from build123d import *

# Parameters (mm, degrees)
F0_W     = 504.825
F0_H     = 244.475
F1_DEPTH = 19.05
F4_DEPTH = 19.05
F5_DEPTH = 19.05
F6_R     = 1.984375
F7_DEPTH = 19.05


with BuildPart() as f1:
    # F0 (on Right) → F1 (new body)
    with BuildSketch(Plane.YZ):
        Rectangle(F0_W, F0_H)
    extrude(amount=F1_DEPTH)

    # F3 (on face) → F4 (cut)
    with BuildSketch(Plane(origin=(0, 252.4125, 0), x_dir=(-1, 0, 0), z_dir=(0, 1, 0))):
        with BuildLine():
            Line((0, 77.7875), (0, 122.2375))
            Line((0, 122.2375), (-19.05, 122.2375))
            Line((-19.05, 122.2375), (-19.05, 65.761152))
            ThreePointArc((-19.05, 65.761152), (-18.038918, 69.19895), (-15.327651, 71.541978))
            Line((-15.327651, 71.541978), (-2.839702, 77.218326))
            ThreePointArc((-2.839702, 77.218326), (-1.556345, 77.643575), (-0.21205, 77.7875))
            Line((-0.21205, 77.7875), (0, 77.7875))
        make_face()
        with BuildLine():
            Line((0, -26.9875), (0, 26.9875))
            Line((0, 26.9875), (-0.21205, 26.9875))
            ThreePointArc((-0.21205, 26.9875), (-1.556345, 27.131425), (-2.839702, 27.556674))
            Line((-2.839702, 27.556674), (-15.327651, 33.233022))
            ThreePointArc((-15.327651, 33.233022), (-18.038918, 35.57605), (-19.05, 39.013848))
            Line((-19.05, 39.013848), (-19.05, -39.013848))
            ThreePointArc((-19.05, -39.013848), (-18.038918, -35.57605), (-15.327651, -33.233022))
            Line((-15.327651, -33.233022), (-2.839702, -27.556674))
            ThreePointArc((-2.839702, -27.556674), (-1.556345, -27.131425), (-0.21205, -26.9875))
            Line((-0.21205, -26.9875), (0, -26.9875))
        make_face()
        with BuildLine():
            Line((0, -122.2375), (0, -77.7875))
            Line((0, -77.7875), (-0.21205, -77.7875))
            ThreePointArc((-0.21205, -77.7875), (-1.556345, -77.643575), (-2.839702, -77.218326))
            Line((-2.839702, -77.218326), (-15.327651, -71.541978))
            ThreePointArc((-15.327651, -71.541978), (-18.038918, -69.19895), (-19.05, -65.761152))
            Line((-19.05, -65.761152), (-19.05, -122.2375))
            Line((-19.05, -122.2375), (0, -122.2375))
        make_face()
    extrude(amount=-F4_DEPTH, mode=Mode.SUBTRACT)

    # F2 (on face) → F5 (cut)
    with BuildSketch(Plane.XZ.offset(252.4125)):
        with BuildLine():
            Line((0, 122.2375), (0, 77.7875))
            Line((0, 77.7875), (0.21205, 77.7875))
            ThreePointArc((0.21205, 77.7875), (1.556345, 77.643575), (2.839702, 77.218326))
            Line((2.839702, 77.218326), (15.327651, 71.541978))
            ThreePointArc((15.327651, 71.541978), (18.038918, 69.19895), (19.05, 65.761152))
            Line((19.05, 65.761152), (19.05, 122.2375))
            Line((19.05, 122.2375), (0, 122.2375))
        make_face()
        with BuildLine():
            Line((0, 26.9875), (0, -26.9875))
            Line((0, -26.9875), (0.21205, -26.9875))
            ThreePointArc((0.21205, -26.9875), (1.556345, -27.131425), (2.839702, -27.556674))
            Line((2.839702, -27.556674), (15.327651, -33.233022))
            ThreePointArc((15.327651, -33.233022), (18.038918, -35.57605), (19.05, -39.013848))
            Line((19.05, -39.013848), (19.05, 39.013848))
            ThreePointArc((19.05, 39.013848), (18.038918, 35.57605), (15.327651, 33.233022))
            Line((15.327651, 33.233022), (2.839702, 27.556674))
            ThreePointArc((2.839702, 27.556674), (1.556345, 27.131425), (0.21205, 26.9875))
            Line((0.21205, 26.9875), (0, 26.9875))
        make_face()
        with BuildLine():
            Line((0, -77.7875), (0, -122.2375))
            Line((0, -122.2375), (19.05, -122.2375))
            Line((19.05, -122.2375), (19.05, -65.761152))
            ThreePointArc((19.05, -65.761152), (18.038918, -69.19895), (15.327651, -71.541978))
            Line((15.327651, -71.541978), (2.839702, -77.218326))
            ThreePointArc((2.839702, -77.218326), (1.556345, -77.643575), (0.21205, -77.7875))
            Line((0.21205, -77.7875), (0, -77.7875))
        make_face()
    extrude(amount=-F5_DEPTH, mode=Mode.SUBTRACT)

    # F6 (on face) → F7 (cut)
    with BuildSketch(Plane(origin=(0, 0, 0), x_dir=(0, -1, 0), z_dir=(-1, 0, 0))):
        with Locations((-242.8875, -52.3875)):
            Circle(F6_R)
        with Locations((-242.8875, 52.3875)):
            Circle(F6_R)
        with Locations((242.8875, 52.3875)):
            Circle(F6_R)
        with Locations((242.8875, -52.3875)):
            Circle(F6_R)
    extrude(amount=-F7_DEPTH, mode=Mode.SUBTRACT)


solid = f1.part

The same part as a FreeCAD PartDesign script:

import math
import FreeCAD as App
import Part
import Sketcher
from FreeCAD import Vector
Q = App.Units.Quantity

doc = App.newDocument("Part")
body = doc.addObject("PartDesign::Body", "Body")

# Sketch on YZ plane
sketch1 = doc.addObject("Sketcher::SketchObject", "Sketch")
body.addObject(sketch1)
sketch1.AttachmentSupport = (doc.YZ_Plane, [""])
sketch1.MapMode = "FlatFace"
sketch1.addGeometry(Part.LineSegment(Vector(-252, 122, 0), Vector(-252, -122, 0)), False)
sketch1.addGeometry(Part.LineSegment(Vector(-252, -122, 0), Vector(252, -122, 0)), False)
sketch1.addGeometry(Part.LineSegment(Vector(252, -122, 0), Vector(252, 122, 0)), False)
sketch1.addGeometry(Part.LineSegment(Vector(252, 122, 0), Vector(-252, 122, 0)), False)
sketch1.addConstraint(Sketcher.Constraint("Coincident", 0, 2, 1, 1))
sketch1.addConstraint(Sketcher.Constraint("Coincident", 1, 2, 2, 1))
sketch1.addConstraint(Sketcher.Constraint("Coincident", 2, 2, 3, 1))
sketch1.addConstraint(Sketcher.Constraint("Coincident", 3, 2, 0, 1))
sketch1.addConstraint(Sketcher.Constraint("Vertical", 0))
sketch1.addConstraint(Sketcher.Constraint("Horizontal", 1))
sketch1.addConstraint(Sketcher.Constraint("Vertical", 2))
sketch1.addConstraint(Sketcher.Constraint("Horizontal", 3))
sketch1.addConstraint(Sketcher.Constraint("Symmetric", 0, 2, 2, 2, -1, 1))
sketch1.addConstraint(Sketcher.Constraint("DistanceX", 1, 1, 1, 2, Q("19.875 in")))
sketch1.addConstraint(Sketcher.Constraint("DistanceY", 0, 2, 0, 1, Q("9.625 in")))
pad1 = doc.addObject("PartDesign::Pad", "Pad")
body.addObject(pad1)
pad1.Profile = sketch1
pad1.Length = Q("0.75 in")

# Sketch on XZ plane
sketch2 = doc.addObject("Sketcher::SketchObject", "Sketch001")
body.addObject(sketch2)
sketch2.AttachmentSupport = (doc.XZ_Plane, [""])
sketch2.MapMode = "FlatFace"
sketch2.AttachmentOffset = App.Placement(Vector(0, 0, -9.9375 * 25.4), App.Rotation())
sketch2.addGeometry(Part.LineSegment(Vector(0, 77.7875, 0), Vector(0, 122.2375, 0)), False)
sketch2.addGeometry(Part.LineSegment(Vector(0, 122.2375, 0), Vector(19.05, 122.2375, 0)), False)
sketch2.addGeometry(Part.LineSegment(Vector(19.05, 122.2375, 0), Vector(19.05, 65.761152, 0)), False)
sketch2.addGeometry(Part.ArcOfCircle(Part.Circle(Vector(12.7, 65.761152, 0), Vector(0, 0, 1), 6.35), math.radians(-0.000002), math.radians(65.556025)), False)
sketch2.addGeometry(Part.LineSegment(Vector(15.327651, 71.541978, 0), Vector(2.839702, 77.218326, 0)), False)
sketch2.addGeometry(Part.ArcOfCircle(Part.Circle(Vector(0.212046, 71.437479, 0), Vector(0, 0, 1), 6.350021), math.radians(65.556062), math.radians(89.999966)), False)
sketch2.addGeometry(Part.LineSegment(Vector(0.21205, 77.7875, 0), Vector(0, 77.7875, 0)), False)
sketch2.addGeometry(Part.LineSegment(Vector(0, -26.9875, 0), Vector(0, 26.9875, 0)), False)
sketch2.addGeometry(Part.LineSegment(Vector(0, 26.9875, 0), Vector(0.21205, 26.9875, 0)), False)
sketch2.addGeometry(Part.ArcOfCircle(Part.Circle(Vector(0.212046, 33.337521, 0), Vector(0, 0, 1), 6.350021), math.radians(-89.999966), math.radians(-65.556062)), False)
sketch2.addGeometry(Part.LineSegment(Vector(2.839702, 27.556674, 0), Vector(15.327651, 33.233022, 0)), False)
sketch2.addGeometry(Part.ArcOfCircle(Part.Circle(Vector(12.7, 39.013848, 0), Vector(0, 0, 1), 6.35), math.radians(-65.556025), math.radians(0.000002)), False)
sketch2.addGeometry(Part.LineSegment(Vector(19.05, 39.013848, 0), Vector(19.05, -39.013848, 0)), False)
sketch2.addGeometry(Part.ArcOfCircle(Part.Circle(Vector(12.7, -39.013848, 0), Vector(0, 0, 1), 6.35), math.radians(-0.000002), math.radians(65.556025)), False)
sketch2.addGeometry(Part.LineSegment(Vector(15.327651, -33.233022, 0), Vector(2.839702, -27.556674, 0)), False)
sketch2.addGeometry(Part.ArcOfCircle(Part.Circle(Vector(0.212046, -33.337521, 0), Vector(0, 0, 1), 6.350021), math.radians(65.556062), math.radians(89.999966)), False)
sketch2.addGeometry(Part.LineSegment(Vector(0.21205, -26.9875, 0), Vector(0, -26.9875, 0)), False)
sketch2.addGeometry(Part.LineSegment(Vector(0, -122.2375, 0), Vector(0, -77.7875, 0)), False)
sketch2.addGeometry(Part.LineSegment(Vector(0, -77.7875, 0), Vector(0.21205, -77.7875, 0)), False)
sketch2.addGeometry(Part.ArcOfCircle(Part.Circle(Vector(0.212046, -71.437479, 0), Vector(0, 0, 1), 6.350021), math.radians(-89.999966), math.radians(-65.556062)), False)
sketch2.addGeometry(Part.LineSegment(Vector(2.839702, -77.218326, 0), Vector(15.327651, -71.541978, 0)), False)
sketch2.addGeometry(Part.ArcOfCircle(Part.Circle(Vector(12.7, -65.761152, 0), Vector(0, 0, 1), 6.35), math.radians(-65.556025), math.radians(0.000002)), False)
sketch2.addGeometry(Part.LineSegment(Vector(19.05, -65.761152, 0), Vector(19.05, -122.2375, 0)), False)
sketch2.addGeometry(Part.LineSegment(Vector(19.05, -122.2375, 0), Vector(0, -122.2375, 0)), False)
sketch2.addConstraint(Sketcher.Constraint("Coincident", 0, 2, 1, 1))
sketch2.addConstraint(Sketcher.Constraint("Coincident", 1, 2, 2, 1))
sketch2.addConstraint(Sketcher.Constraint("Coincident", 2, 2, 3, 1))
sketch2.addConstraint(Sketcher.Constraint("Coincident", 3, 2, 4, 1))
sketch2.addConstraint(Sketcher.Constraint("Coincident", 4, 2, 5, 1))
sketch2.addConstraint(Sketcher.Constraint("Coincident", 5, 2, 6, 1))
sketch2.addConstraint(Sketcher.Constraint("Coincident", 6, 2, 0, 1))
sketch2.addConstraint(Sketcher.Constraint("Coincident", 7, 2, 8, 1))
sketch2.addConstraint(Sketcher.Constraint("Coincident", 8, 2, 9, 1))
sketch2.addConstraint(Sketcher.Constraint("Coincident", 9, 2, 10, 1))
sketch2.addConstraint(Sketcher.Constraint("Coincident", 10, 2, 11, 1))
sketch2.addConstraint(Sketcher.Constraint("Coincident", 11, 2, 12, 1))
sketch2.addConstraint(Sketcher.Constraint("Coincident", 12, 2, 13, 1))
sketch2.addConstraint(Sketcher.Constraint("Coincident", 13, 2, 14, 1))
sketch2.addConstraint(Sketcher.Constraint("Coincident", 14, 2, 15, 1))
sketch2.addConstraint(Sketcher.Constraint("Coincident", 15, 2, 16, 1))
sketch2.addConstraint(Sketcher.Constraint("Coincident", 16, 2, 7, 1))
sketch2.addConstraint(Sketcher.Constraint("Coincident", 17, 2, 18, 1))
sketch2.addConstraint(Sketcher.Constraint("Coincident", 18, 2, 19, 1))
sketch2.addConstraint(Sketcher.Constraint("Coincident", 19, 2, 20, 1))
sketch2.addConstraint(Sketcher.Constraint("Coincident", 20, 2, 21, 1))
sketch2.addConstraint(Sketcher.Constraint("Coincident", 21, 2, 22, 1))
sketch2.addConstraint(Sketcher.Constraint("Coincident", 22, 2, 23, 1))
sketch2.addConstraint(Sketcher.Constraint("Coincident", 23, 2, 17, 1))
sketch2.addConstraint(Sketcher.Constraint("Vertical", 0))
sketch2.addConstraint(Sketcher.Constraint("Horizontal", 1))
sketch2.addConstraint(Sketcher.Constraint("Vertical", 2))
sketch2.addConstraint(Sketcher.Constraint("Horizontal", 6))
sketch2.addConstraint(Sketcher.Constraint("Vertical", 7))
sketch2.addConstraint(Sketcher.Constraint("Horizontal", 8))
sketch2.addConstraint(Sketcher.Constraint("Vertical", 12))
sketch2.addConstraint(Sketcher.Constraint("Horizontal", 16))
sketch2.addConstraint(Sketcher.Constraint("Vertical", 17))
sketch2.addConstraint(Sketcher.Constraint("Horizontal", 18))
sketch2.addConstraint(Sketcher.Constraint("Vertical", 22))
sketch2.addConstraint(Sketcher.Constraint("Horizontal", 23))
sketch2.addConstraint(Sketcher.Constraint("PointOnObject", 0, 2, -2))
sketch2.addConstraint(Sketcher.Constraint("PointOnObject", 7, 2, -2))
sketch2.addConstraint(Sketcher.Constraint("PointOnObject", 17, 2, -2))
sketch2.addConstraint(Sketcher.Constraint("Radius", 3, Q("0.25 in")))
sketch2.addConstraint(Sketcher.Constraint("Radius", 11, Q("0.25 in")))
sketch2.addConstraint(Sketcher.Constraint("Radius", 13, Q("0.25 in")))
sketch2.addConstraint(Sketcher.Constraint("Radius", 21, Q("0.25 in")))
sketch2.addConstraint(Sketcher.Constraint("DistanceX", 1, 1, 1, 2, Q("0.75 in")))
sketch2.addConstraint(Sketcher.Constraint("DistanceX", 23, 2, 23, 1, Q("0.75 in")))
sketch2.addConstraint(Sketcher.Constraint("DistanceY", 0, 1, 0, 2, Q("1.75 in")))
sketch2.addConstraint(Sketcher.Constraint("DistanceY", 17, 1, 17, 2, Q("1.75 in")))
sketch2.addConstraint(Sketcher.Constraint("DistanceX", -1, 1, 11, 3, Q("0.5 in")))
sketch2.addConstraint(Sketcher.Constraint("DistanceY", 7, 1, 7, 2, Q("2.125 in")))
sketch2.addConstraint(Sketcher.Constraint("DistanceY", -1, 1, 0, 2, Q("4.8125 in")))
sketch2.addConstraint(Sketcher.Constraint("DistanceY", -1, 1, 7, 2, Q("1.0625 in")))
sketch2.addConstraint(Sketcher.Constraint("DistanceY", 17, 2, -1, 1, Q("3.0625 in")))
sketch2.addConstraint(Sketcher.Constraint("Radius", 5, Q("6.350021 mm")))
sketch2.addConstraint(Sketcher.Constraint("Radius", 9, Q("6.350021 mm")))
sketch2.addConstraint(Sketcher.Constraint("Radius", 15, Q("6.350021 mm")))
sketch2.addConstraint(Sketcher.Constraint("Radius", 19, Q("6.350021 mm")))
sketch2.addConstraint(Sketcher.Constraint("DistanceY", 13, 3, 3, 3, Q("4.125 in")))
sketch2.addConstraint(Sketcher.Constraint("DistanceY", 21, 3, 11, 3, Q("4.125 in")))
sketch2.addConstraint(Sketcher.Constraint("Distance", 4, Q("13.7175 mm")))
sketch2.addConstraint(Sketcher.Constraint("Distance", 10, Q("13.7175 mm")))
sketch2.addConstraint(Sketcher.Constraint("Distance", 14, Q("13.7175 mm")))
sketch2.addConstraint(Sketcher.Constraint("Distance", 20, Q("13.7175 mm")))
sketch2.addConstraint(Sketcher.Constraint("DistanceX", 6, 2, 6, 1, Q("0.21205 mm")))
sketch2.addConstraint(Sketcher.Constraint("DistanceX", 8, 1, 8, 2, Q("0.21205 mm")))
sketch2.addConstraint(Sketcher.Constraint("DistanceX", 16, 2, 16, 1, Q("0.21205 mm")))
sketch2.addConstraint(Sketcher.Constraint("DistanceX", 18, 1, 18, 2, Q("0.21205 mm")))
sketch2.addConstraint(Sketcher.Constraint("DistanceY", 2, 2, 2, 1, Q("56.476348 mm")))
sketch2.addConstraint(Sketcher.Constraint("DistanceY", 22, 2, 22, 1, Q("56.476348 mm")))
sketch2.addConstraint(Sketcher.Constraint("DistanceX", -1, 1, 4, 2, Q("2.839702 mm")))
sketch2.addConstraint(Sketcher.Constraint("DistanceX", -1, 1, 9, 2, Q("2.839702 mm")))
sketch2.addConstraint(Sketcher.Constraint("DistanceX", -1, 1, 14, 2, Q("2.839702 mm")))
sketch2.addConstraint(Sketcher.Constraint("DistanceX", -1, 1, 19, 2, Q("2.839702 mm")))
sketch2.addConstraint(Sketcher.Constraint("DistanceY", 5, 3, 3, 2, Q("0.104499 mm")))
sketch2.addConstraint(Sketcher.Constraint("DistanceX", 5, 2, 3, 2, Q("15.115601 mm")))
sketch2.addConstraint(Sketcher.Constraint("DistanceY", 10, 2, 9, 3, Q("0.104499 mm")))
sketch2.addConstraint(Sketcher.Constraint("DistanceX", 8, 2, 10, 2, Q("15.115601 mm")))
sketch2.addConstraint(Sketcher.Constraint("DistanceY", 15, 3, 13, 2, Q("0.104499 mm")))
sketch2.addConstraint(Sketcher.Constraint("DistanceY", 20, 2, 19, 3, Q("0.104499 mm")))
sketch2.addConstraint(Sketcher.Constraint("DistanceY", 12, 2, 12, 1, Q("78.027696 mm")))
sketch2.addConstraint(Sketcher.Constraint("DistanceY", -1, 1, 11, 2, Q("39.013848 mm")))
pocket1 = doc.addObject("PartDesign::Pocket", "Pocket")
body.addObject(pocket1)
pocket1.Profile = sketch2
pocket1.Length = Q("0.75 in")
pocket1.Reversed = True

# Sketch on XZ plane
sketch3 = doc.addObject("Sketcher::SketchObject", "Sketch002")
body.addObject(sketch3)
sketch3.AttachmentSupport = (doc.XZ_Plane, [""])
sketch3.MapMode = "FlatFace"
sketch3.AttachmentOffset = App.Placement(Vector(0, 0, 9.9375 * 25.4), App.Rotation())
sketch3.addGeometry(Part.LineSegment(Vector(0, 122.2375, 0), Vector(0, 77.7875, 0)), False)
sketch3.addGeometry(Part.LineSegment(Vector(0, 77.7875, 0), Vector(0.21205, 77.7875, 0)), False)
sketch3.addGeometry(Part.ArcOfCircle(Part.Circle(Vector(0.212046, 71.437479, 0), Vector(0, 0, 1), 6.350021), math.radians(65.556062), math.radians(89.999966)), False)
sketch3.addGeometry(Part.LineSegment(Vector(2.839702, 77.218326, 0), Vector(15.327651, 71.541978, 0)), False)
sketch3.addGeometry(Part.ArcOfCircle(Part.Circle(Vector(12.7, 65.761152, 0), Vector(0, 0, 1), 6.35), math.radians(-0.000002), math.radians(65.556025)), False)
sketch3.addGeometry(Part.LineSegment(Vector(19.05, 65.761152, 0), Vector(19.05, 122.2375, 0)), False)
sketch3.addGeometry(Part.LineSegment(Vector(19.05, 122.2375, 0), Vector(0, 122.2375, 0)), False)
sketch3.addGeometry(Part.LineSegment(Vector(0, 26.9875, 0), Vector(0, -26.9875, 0)), False)
sketch3.addGeometry(Part.LineSegment(Vector(0, -26.9875, 0), Vector(0.21205, -26.9875, 0)), False)
sketch3.addGeometry(Part.ArcOfCircle(Part.Circle(Vector(0.212046, -33.337521, 0), Vector(0, 0, 1), 6.350021), math.radians(65.556062), math.radians(89.999966)), False)
sketch3.addGeometry(Part.LineSegment(Vector(2.839702, -27.556674, 0), Vector(15.327651, -33.233022, 0)), False)
sketch3.addGeometry(Part.ArcOfCircle(Part.Circle(Vector(12.7, -39.013848, 0), Vector(0, 0, 1), 6.35), math.radians(-0.000002), math.radians(65.556025)), False)
sketch3.addGeometry(Part.LineSegment(Vector(19.05, -39.013848, 0), Vector(19.05, 39.013848, 0)), False)
sketch3.addGeometry(Part.ArcOfCircle(Part.Circle(Vector(12.7, 39.013848, 0), Vector(0, 0, 1), 6.35), math.radians(-65.556025), math.radians(0.000002)), False)
sketch3.addGeometry(Part.LineSegment(Vector(15.327651, 33.233022, 0), Vector(2.839702, 27.556674, 0)), False)
sketch3.addGeometry(Part.ArcOfCircle(Part.Circle(Vector(0.212046, 33.337521, 0), Vector(0, 0, 1), 6.350021), math.radians(-89.999966), math.radians(-65.556062)), False)
sketch3.addGeometry(Part.LineSegment(Vector(0.21205, 26.9875, 0), Vector(0, 26.9875, 0)), False)
sketch3.addGeometry(Part.LineSegment(Vector(0, -77.7875, 0), Vector(0, -122.2375, 0)), False)
sketch3.addGeometry(Part.LineSegment(Vector(0, -122.2375, 0), Vector(19.05, -122.2375, 0)), False)
sketch3.addGeometry(Part.LineSegment(Vector(19.05, -122.2375, 0), Vector(19.05, -65.761152, 0)), False)
sketch3.addGeometry(Part.ArcOfCircle(Part.Circle(Vector(12.7, -65.761152, 0), Vector(0, 0, 1), 6.35), math.radians(-65.556025), math.radians(0.000002)), False)
sketch3.addGeometry(Part.LineSegment(Vector(15.327651, -71.541978, 0), Vector(2.839702, -77.218326, 0)), False)
sketch3.addGeometry(Part.ArcOfCircle(Part.Circle(Vector(0.212046, -71.437479, 0), Vector(0, 0, 1), 6.350021), math.radians(-89.999966), math.radians(-65.556062)), False)
sketch3.addGeometry(Part.LineSegment(Vector(0.21205, -77.7875, 0), Vector(0, -77.7875, 0)), False)
sketch3.addConstraint(Sketcher.Constraint("Coincident", 0, 2, 1, 1))
sketch3.addConstraint(Sketcher.Constraint("Coincident", 1, 2, 2, 2))
sketch3.addConstraint(Sketcher.Constraint("Coincident", 2, 1, 3, 1))
sketch3.addConstraint(Sketcher.Constraint("Coincident", 3, 2, 4, 2))
sketch3.addConstraint(Sketcher.Constraint("Coincident", 4, 1, 5, 1))
sketch3.addConstraint(Sketcher.Constraint("Coincident", 5, 2, 6, 1))
sketch3.addConstraint(Sketcher.Constraint("Coincident", 6, 2, 0, 1))
sketch3.addConstraint(Sketcher.Constraint("Coincident", 7, 2, 8, 1))
sketch3.addConstraint(Sketcher.Constraint("Coincident", 8, 2, 9, 2))
sketch3.addConstraint(Sketcher.Constraint("Coincident", 9, 1, 10, 1))
sketch3.addConstraint(Sketcher.Constraint("Coincident", 10, 2, 11, 2))
sketch3.addConstraint(Sketcher.Constraint("Coincident", 11, 1, 12, 1))
sketch3.addConstraint(Sketcher.Constraint("Coincident", 12, 2, 13, 2))
sketch3.addConstraint(Sketcher.Constraint("Coincident", 13, 1, 14, 1))
sketch3.addConstraint(Sketcher.Constraint("Coincident", 14, 2, 15, 2))
sketch3.addConstraint(Sketcher.Constraint("Coincident", 15, 1, 16, 1))
sketch3.addConstraint(Sketcher.Constraint("Coincident", 16, 2, 7, 1))
sketch3.addConstraint(Sketcher.Constraint("Coincident", 17, 2, 18, 1))
sketch3.addConstraint(Sketcher.Constraint("Coincident", 18, 2, 19, 1))
sketch3.addConstraint(Sketcher.Constraint("Coincident", 19, 2, 20, 2))
sketch3.addConstraint(Sketcher.Constraint("Coincident", 20, 1, 21, 1))
sketch3.addConstraint(Sketcher.Constraint("Coincident", 21, 2, 22, 2))
sketch3.addConstraint(Sketcher.Constraint("Coincident", 22, 1, 23, 1))
sketch3.addConstraint(Sketcher.Constraint("Coincident", 23, 2, 17, 1))
sketch3.addConstraint(Sketcher.Constraint("Vertical", 0))
sketch3.addConstraint(Sketcher.Constraint("Horizontal", 1))
sketch3.addConstraint(Sketcher.Constraint("Vertical", 5))
sketch3.addConstraint(Sketcher.Constraint("Horizontal", 6))
sketch3.addConstraint(Sketcher.Constraint("Vertical", 7))
sketch3.addConstraint(Sketcher.Constraint("Horizontal", 8))
sketch3.addConstraint(Sketcher.Constraint("Vertical", 12))
sketch3.addConstraint(Sketcher.Constraint("Horizontal", 16))
sketch3.addConstraint(Sketcher.Constraint("Vertical", 17))
sketch3.addConstraint(Sketcher.Constraint("Horizontal", 18))
sketch3.addConstraint(Sketcher.Constraint("Vertical", 19))
sketch3.addConstraint(Sketcher.Constraint("Horizontal", 23))
sketch3.addConstraint(Sketcher.Constraint("PointOnObject", 0, 2, -2))
sketch3.addConstraint(Sketcher.Constraint("PointOnObject", 7, 2, -2))
sketch3.addConstraint(Sketcher.Constraint("PointOnObject", 17, 2, -2))
sketch3.addConstraint(Sketcher.Constraint("Radius", 4, Q("0.25 in")))
sketch3.addConstraint(Sketcher.Constraint("Radius", 11, Q("0.25 in")))
sketch3.addConstraint(Sketcher.Constraint("Radius", 13, Q("0.25 in")))
sketch3.addConstraint(Sketcher.Constraint("Radius", 20, Q("0.25 in")))
sketch3.addConstraint(Sketcher.Constraint("DistanceX", 6, 2, 6, 1, Q("0.75 in")))
sketch3.addConstraint(Sketcher.Constraint("DistanceX", 18, 1, 18, 2, Q("0.75 in")))
sketch3.addConstraint(Sketcher.Constraint("DistanceY", 0, 2, 0, 1, Q("1.75 in")))
sketch3.addConstraint(Sketcher.Constraint("DistanceY", 17, 2, 17, 1, Q("1.75 in")))
sketch3.addConstraint(Sketcher.Constraint("DistanceX", -1, 1, 11, 3, Q("0.5 in")))
sketch3.addConstraint(Sketcher.Constraint("DistanceY", 7, 2, 7, 1, Q("2.125 in")))
sketch3.addConstraint(Sketcher.Constraint("DistanceY", -1, 1, 0, 2, Q("3.0625 in")))
sketch3.addConstraint(Sketcher.Constraint("DistanceY", 7, 2, -1, 1, Q("1.0625 in")))
sketch3.addConstraint(Sketcher.Constraint("DistanceY", 17, 2, -1, 1, Q("4.8125 in")))
sketch3.addConstraint(Sketcher.Constraint("Radius", 2, Q("6.350021 mm")))
sketch3.addConstraint(Sketcher.Constraint("Radius", 9, Q("6.350021 mm")))
sketch3.addConstraint(Sketcher.Constraint("Radius", 15, Q("6.350021 mm")))
sketch3.addConstraint(Sketcher.Constraint("Radius", 22, Q("6.350021 mm")))
sketch3.addConstraint(Sketcher.Constraint("DistanceY", 11, 3, 4, 3, Q("4.125 in")))
sketch3.addConstraint(Sketcher.Constraint("DistanceY", 20, 3, 13, 3, Q("4.125 in")))
sketch3.addConstraint(Sketcher.Constraint("Distance", 3, Q("13.7175 mm")))
sketch3.addConstraint(Sketcher.Constraint("Distance", 10, Q("13.7175 mm")))
sketch3.addConstraint(Sketcher.Constraint("Distance", 14, Q("13.7175 mm")))
sketch3.addConstraint(Sketcher.Constraint("Distance", 21, Q("13.7175 mm")))
sketch3.addConstraint(Sketcher.Constraint("DistanceX", 1, 1, 1, 2, Q("0.21205 mm")))
sketch3.addConstraint(Sketcher.Constraint("DistanceX", 8, 1, 8, 2, Q("0.21205 mm")))
sketch3.addConstraint(Sketcher.Constraint("DistanceX", 16, 2, 16, 1, Q("0.21205 mm")))
sketch3.addConstraint(Sketcher.Constraint("DistanceX", 23, 2, 23, 1, Q("0.21205 mm")))
sketch3.addConstraint(Sketcher.Constraint("DistanceY", 5, 1, 5, 2, Q("56.476348 mm")))
sketch3.addConstraint(Sketcher.Constraint("DistanceY", 19, 1, 19, 2, Q("56.476348 mm")))
sketch3.addConstraint(Sketcher.Constraint("DistanceX", -1, 1, 2, 1, Q("2.839702 mm")))
sketch3.addConstraint(Sketcher.Constraint("DistanceX", -1, 1, 9, 1, Q("2.839702 mm")))
sketch3.addConstraint(Sketcher.Constraint("DistanceX", -1, 1, 14, 2, Q("2.839702 mm")))
sketch3.addConstraint(Sketcher.Constraint("DistanceX", -1, 1, 21, 2, Q("2.839702 mm")))
sketch3.addConstraint(Sketcher.Constraint("DistanceY", 2, 3, 3, 2, Q("0.104499 mm")))
sketch3.addConstraint(Sketcher.Constraint("DistanceX", 1, 2, 3, 2, Q("15.115601 mm")))
sketch3.addConstraint(Sketcher.Constraint("DistanceY", 9, 3, 10, 2, Q("0.104499 mm")))
sketch3.addConstraint(Sketcher.Constraint("DistanceY", 13, 1, 15, 3, Q("0.104499 mm")))
sketch3.addConstraint(Sketcher.Constraint("DistanceX", 15, 1, 13, 1, Q("15.115601 mm")))
sketch3.addConstraint(Sketcher.Constraint("DistanceY", 20, 1, 22, 3, Q("0.104499 mm")))
sketch3.addConstraint(Sketcher.Constraint("DistanceY", 12, 1, 12, 2, Q("78.027696 mm")))
sketch3.addConstraint(Sketcher.Constraint("DistanceY", 11, 1, -1, 1, Q("39.013848 mm")))
pocket2 = doc.addObject("PartDesign::Pocket", "Pocket001")
body.addObject(pocket2)
pocket2.Profile = sketch3
pocket2.Length = Q("0.75 in")

# Sketch on YZ plane
sketch4 = doc.addObject("Sketcher::SketchObject", "Sketch003")
body.addObject(sketch4)
sketch4.AttachmentSupport = (doc.YZ_Plane, [""])
sketch4.MapMode = "FlatFace"
sketch4.addGeometry(Part.Circle(Vector(242.9, -52.4, 0), Vector(0, 0, 1), 2), False)
sketch4.addGeometry(Part.Circle(Vector(242.9, 52.4, 0), Vector(0, 0, 1), 2), False)
sketch4.addGeometry(Part.Circle(Vector(-242.9, 52.4, 0), Vector(0, 0, 1), 2), False)
sketch4.addGeometry(Part.Circle(Vector(-242.9, -52.4, 0), Vector(0, 0, 1), 2), False)
sketch4.addConstraint(Sketcher.Constraint("Equal", 0, 1))
sketch4.addConstraint(Sketcher.Constraint("Equal", 1, 2))
sketch4.addConstraint(Sketcher.Constraint("Equal", 2, 3))
sketch4.addConstraint(Sketcher.Constraint("Symmetric", 0, 3, 2, 3, -1, 1))
sketch4.addConstraint(Sketcher.Constraint("Symmetric", 1, 3, 3, 3, -1, 1))
sketch4.addConstraint(Sketcher.Constraint("Symmetric", 1, 3, 2, 3, -2))
sketch4.addConstraint(Sketcher.Constraint("Diameter", 0, Q("0.15625 in")))
sketch4.addConstraint(Sketcher.Constraint("DistanceX", -1, 1, 0, 3, Q("9.5625 in")))
sketch4.addConstraint(Sketcher.Constraint("DistanceY", 0, 3, -1, 1, Q("2.0625 in")))
pocket3 = doc.addObject("PartDesign::Pocket", "Pocket002")
body.addObject(pocket3)
pocket3.Profile = sketch4
pocket3.Length = Q("0.75 in")
pocket3.Reversed = True

doc.recompute()
